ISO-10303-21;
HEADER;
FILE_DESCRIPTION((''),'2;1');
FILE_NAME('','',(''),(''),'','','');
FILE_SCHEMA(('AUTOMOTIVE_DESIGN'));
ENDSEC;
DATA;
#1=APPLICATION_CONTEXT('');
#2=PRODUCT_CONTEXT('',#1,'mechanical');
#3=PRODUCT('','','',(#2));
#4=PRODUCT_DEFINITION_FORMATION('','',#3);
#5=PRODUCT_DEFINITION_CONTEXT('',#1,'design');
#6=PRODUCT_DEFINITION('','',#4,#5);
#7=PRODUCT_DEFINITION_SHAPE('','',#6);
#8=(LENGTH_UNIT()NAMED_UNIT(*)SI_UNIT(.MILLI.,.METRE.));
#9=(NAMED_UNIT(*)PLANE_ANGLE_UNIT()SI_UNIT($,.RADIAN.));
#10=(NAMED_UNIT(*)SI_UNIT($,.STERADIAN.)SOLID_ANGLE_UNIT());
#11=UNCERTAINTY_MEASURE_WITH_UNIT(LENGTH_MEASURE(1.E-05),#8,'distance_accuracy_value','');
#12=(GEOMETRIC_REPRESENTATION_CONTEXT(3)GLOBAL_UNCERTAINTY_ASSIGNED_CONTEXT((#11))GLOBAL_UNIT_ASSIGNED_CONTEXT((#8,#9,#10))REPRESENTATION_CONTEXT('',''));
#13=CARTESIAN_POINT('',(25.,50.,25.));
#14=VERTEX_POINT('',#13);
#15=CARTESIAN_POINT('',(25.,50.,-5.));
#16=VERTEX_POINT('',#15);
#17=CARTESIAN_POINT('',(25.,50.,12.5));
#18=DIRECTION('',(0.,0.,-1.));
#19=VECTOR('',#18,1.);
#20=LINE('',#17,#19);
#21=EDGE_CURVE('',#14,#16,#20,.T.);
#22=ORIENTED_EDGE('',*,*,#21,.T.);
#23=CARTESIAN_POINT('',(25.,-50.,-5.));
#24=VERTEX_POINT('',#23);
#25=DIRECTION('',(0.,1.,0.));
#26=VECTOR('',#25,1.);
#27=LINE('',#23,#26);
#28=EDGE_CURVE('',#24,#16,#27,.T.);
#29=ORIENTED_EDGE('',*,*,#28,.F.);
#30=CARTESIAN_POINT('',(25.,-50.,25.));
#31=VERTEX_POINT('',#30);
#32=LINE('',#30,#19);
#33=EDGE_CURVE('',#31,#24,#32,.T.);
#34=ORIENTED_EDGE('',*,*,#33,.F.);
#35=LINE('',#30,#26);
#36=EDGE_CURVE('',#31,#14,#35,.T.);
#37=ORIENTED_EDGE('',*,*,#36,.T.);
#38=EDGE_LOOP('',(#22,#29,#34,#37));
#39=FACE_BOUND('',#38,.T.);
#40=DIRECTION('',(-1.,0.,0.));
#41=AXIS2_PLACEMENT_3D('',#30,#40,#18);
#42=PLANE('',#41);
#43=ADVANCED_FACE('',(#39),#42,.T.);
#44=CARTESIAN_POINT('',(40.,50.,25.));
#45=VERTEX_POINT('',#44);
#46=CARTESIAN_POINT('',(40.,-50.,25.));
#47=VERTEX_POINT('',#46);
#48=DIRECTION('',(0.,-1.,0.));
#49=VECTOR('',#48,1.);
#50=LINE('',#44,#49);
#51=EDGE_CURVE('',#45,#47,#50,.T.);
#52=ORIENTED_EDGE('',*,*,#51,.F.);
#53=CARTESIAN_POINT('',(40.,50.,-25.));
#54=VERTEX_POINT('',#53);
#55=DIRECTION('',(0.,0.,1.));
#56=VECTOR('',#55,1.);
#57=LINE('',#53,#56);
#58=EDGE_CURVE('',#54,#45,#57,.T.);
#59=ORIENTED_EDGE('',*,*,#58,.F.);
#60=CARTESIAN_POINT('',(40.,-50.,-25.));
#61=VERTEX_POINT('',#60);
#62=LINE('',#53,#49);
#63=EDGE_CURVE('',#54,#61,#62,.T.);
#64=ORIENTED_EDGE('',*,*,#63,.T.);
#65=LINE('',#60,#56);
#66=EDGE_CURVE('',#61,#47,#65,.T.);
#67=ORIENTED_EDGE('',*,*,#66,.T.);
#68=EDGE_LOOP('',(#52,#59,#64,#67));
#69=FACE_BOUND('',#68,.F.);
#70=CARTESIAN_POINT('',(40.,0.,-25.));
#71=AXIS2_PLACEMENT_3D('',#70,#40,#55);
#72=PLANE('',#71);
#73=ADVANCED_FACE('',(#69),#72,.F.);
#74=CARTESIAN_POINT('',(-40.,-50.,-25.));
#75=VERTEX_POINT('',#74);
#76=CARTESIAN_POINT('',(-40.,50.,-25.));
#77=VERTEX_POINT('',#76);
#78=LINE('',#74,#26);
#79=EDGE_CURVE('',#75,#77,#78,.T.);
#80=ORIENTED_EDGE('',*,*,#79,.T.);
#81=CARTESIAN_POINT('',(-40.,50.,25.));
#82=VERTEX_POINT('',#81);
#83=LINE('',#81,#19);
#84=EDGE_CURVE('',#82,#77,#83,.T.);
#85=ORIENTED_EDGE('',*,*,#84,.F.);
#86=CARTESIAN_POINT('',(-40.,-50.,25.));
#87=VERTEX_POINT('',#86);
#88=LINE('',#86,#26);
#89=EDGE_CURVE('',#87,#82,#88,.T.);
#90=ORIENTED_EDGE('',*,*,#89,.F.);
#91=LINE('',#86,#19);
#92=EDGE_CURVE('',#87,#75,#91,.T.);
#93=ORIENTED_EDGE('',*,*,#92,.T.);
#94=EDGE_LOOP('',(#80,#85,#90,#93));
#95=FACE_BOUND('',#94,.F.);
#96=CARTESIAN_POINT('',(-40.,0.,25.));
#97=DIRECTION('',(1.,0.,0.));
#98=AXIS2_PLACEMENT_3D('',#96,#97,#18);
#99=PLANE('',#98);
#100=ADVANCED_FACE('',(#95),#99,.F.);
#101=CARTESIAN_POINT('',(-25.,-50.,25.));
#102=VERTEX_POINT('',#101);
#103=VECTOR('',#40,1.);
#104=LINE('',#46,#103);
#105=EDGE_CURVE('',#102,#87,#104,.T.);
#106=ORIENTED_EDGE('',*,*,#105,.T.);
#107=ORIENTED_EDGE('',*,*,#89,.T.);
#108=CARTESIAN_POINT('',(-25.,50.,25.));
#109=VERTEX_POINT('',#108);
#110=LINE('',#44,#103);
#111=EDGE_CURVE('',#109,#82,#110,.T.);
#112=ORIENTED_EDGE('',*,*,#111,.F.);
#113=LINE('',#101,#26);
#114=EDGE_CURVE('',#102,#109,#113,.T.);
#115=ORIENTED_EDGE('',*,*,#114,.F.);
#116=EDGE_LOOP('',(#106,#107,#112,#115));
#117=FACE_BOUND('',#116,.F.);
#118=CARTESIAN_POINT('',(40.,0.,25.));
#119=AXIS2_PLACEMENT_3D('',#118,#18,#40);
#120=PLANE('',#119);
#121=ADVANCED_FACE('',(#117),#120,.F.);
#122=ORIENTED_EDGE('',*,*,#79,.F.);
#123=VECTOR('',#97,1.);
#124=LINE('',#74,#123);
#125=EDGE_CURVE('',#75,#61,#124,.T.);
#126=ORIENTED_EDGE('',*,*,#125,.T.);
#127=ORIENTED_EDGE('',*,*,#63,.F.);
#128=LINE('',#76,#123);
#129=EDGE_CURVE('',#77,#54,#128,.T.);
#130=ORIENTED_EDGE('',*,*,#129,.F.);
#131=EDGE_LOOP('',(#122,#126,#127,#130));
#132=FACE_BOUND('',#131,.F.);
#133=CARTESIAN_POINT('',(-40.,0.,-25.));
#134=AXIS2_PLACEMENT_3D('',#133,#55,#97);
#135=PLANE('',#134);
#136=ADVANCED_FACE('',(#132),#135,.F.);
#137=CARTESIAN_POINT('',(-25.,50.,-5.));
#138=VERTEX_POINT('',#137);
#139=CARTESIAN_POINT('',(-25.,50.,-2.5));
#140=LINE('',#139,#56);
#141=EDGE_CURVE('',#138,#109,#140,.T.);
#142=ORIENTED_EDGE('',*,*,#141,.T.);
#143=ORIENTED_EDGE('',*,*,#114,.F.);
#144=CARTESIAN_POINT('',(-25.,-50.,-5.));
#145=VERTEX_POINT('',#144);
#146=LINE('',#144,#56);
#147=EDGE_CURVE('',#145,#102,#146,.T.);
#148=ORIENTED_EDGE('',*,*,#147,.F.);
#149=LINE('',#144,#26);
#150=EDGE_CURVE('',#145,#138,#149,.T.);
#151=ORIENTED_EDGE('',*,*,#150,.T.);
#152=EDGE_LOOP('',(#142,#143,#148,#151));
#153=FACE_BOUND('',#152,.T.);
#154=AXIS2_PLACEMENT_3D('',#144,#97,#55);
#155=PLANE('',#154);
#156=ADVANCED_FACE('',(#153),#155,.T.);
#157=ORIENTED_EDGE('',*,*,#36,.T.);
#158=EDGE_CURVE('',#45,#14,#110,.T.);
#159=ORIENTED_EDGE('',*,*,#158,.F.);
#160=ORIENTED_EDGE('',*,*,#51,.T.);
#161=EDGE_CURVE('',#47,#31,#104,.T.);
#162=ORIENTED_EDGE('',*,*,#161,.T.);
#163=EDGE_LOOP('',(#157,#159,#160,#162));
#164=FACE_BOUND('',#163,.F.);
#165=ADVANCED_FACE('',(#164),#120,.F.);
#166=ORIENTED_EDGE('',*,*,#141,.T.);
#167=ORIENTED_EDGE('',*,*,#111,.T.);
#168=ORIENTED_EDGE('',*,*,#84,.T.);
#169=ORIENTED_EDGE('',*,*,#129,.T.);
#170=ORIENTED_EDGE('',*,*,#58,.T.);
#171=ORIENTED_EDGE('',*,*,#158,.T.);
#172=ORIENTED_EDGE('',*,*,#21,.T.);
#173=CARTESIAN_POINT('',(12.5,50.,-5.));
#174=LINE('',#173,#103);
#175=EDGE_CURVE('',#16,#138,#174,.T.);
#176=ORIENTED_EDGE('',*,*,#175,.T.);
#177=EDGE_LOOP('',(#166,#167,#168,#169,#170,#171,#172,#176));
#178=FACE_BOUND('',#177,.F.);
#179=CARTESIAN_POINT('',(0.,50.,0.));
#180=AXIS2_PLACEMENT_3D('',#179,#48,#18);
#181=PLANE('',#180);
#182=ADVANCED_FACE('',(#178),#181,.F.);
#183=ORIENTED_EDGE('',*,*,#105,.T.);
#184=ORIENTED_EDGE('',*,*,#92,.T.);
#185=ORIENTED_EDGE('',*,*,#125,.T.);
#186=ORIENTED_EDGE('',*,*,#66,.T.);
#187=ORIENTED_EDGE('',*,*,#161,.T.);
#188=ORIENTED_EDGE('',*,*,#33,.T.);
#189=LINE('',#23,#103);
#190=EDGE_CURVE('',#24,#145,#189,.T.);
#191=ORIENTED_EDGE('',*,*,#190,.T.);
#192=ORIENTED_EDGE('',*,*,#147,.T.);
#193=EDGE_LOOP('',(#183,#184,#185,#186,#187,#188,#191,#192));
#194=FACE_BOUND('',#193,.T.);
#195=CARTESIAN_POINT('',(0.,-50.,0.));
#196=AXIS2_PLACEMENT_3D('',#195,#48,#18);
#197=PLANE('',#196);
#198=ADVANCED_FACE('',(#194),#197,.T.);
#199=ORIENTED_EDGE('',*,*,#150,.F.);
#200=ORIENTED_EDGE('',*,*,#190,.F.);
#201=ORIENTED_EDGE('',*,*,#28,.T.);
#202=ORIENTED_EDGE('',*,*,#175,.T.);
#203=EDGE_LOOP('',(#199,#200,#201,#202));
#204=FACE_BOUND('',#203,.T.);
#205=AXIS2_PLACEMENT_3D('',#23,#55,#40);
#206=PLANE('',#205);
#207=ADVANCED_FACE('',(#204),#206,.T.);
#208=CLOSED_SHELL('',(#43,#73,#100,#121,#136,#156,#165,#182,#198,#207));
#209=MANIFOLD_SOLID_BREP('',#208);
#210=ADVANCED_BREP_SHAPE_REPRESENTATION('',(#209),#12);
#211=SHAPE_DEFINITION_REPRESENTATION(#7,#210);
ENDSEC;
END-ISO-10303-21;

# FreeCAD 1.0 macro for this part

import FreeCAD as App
import Part
import Sketcher

doc = App.newDocument("Part")
body = doc.addObject("PartDesign::Body", "Body")

# Sketch on XZ plane
sketch1 = body.newObject("Sketcher::SketchObject", "Sketch")
sketch1.AttachmentSupport = (doc.getObject("XZ_Plane"), [""])
sketch1.MapMode = "FlatFace"
sketch1.addGeometry(Part.LineSegment(App.Vector(-40, 25, 0), App.Vector(-40, -25, 0)), False)
sketch1.addGeometry(Part.LineSegment(App.Vector(-40, -25, 0), App.Vector(40, -25, 0)), False)
sketch1.addGeometry(Part.LineSegment(App.Vector(40, -25, 0), App.Vector(40, 25, 0)), False)
sketch1.addGeometry(Part.LineSegment(App.Vector(40, 25, 0), App.Vector(-40, 25, 0)), False)
sketch1.addConstraint(Sketcher.Constraint("Coincident", 0, 2, 1, 1))
sketch1.addConstraint(Sketcher.Constraint("Coincident", 1, 2, 2, 1))
sketch1.addConstraint(Sketcher.Constraint("Coincident", 2, 2, 3, 1))
sketch1.addConstraint(Sketcher.Constraint("Coincident", 3, 2, 0, 1))
sketch1.addConstraint(Sketcher.Constraint("Vertical", 0))
sketch1.addConstraint(Sketcher.Constraint("Horizontal", 1))
sketch1.addConstraint(Sketcher.Constraint("Vertical", 2))
sketch1.addConstraint(Sketcher.Constraint("Horizontal", 3))
sketch1.addConstraint(Sketcher.Constraint("Symmetric", 0, 2, 2, 2, -1, 1))
sketch1.addConstraint(Sketcher.Constraint("DistanceX", 0, 2, -1, 1, 40.0))
sketch1.addConstraint(Sketcher.Constraint("DistanceY", 0, 2, 0, 1, 50.0))
pad1 = body.newObject("PartDesign::Pad", "Pad")
pad1.Profile = sketch1
pad1.Length = 100
pad1.Midplane = True

# Sketch on XZ plane
sketch2 = body.newObject("Sketcher::SketchObject", "Sketch001")
sketch2.AttachmentSupport = (doc.getObject("XZ_Plane"), [""])
sketch2.MapMode = "FlatFace"
sketch2.AttachmentOffset = App.Placement(App.Vector(0, 0, 50), App.Rotation())
sketch2.addGeometry(Part.LineSegment(App.Vector(25, 25, 0), App.Vector(-25, 25, 0)), False)
sketch2.addGeometry(Part.LineSegment(App.Vector(-25, 25, 0), App.Vector(-25, -5, 0)), False)
sketch2.addGeometry(Part.LineSegment(App.Vector(-25, -5, 0), App.Vector(25, -5, 0)), False)
sketch2.addGeometry(Part.LineSegment(App.Vector(25, -5, 0), App.Vector(25, 25, 0)), False)
sketch2.addConstraint(Sketcher.Constraint("Coincident", 0, 2, 1, 1))
sketch2.addConstraint(Sketcher.Constraint("Coincident", 1, 2, 2, 1))
sketch2.addConstraint(Sketcher.Constraint("Coincident", 2, 2, 3, 1))
sketch2.addConstraint(Sketcher.Constraint("Coincident", 3, 2, 0, 1))
sketch2.addConstraint(Sketcher.Constraint("Horizontal", 0))
sketch2.addConstraint(Sketcher.Constraint("Vertical", 1))
sketch2.addConstraint(Sketcher.Constraint("Horizontal", 2))
sketch2.addConstraint(Sketcher.Constraint("Vertical", 3))
sketch2.addConstraint(Sketcher.Constraint("DistanceX", 0, 2, -1, 1, 25.0))
sketch2.addConstraint(Sketcher.Constraint("DistanceY", -1, 1, 0, 2, 25.0))
sketch2.addConstraint(Sketcher.Constraint("DistanceX", -1, 1, 2, 2, 25.0))
sketch2.addConstraint(Sketcher.Constraint("DistanceY", 1, 2, 1, 1, 30.0))
pocket1 = body.newObject("PartDesign::Pocket", "Pocket")
pocket1.Profile = sketch2
pocket1.Type = "ThroughAll"

doc.recompute()
